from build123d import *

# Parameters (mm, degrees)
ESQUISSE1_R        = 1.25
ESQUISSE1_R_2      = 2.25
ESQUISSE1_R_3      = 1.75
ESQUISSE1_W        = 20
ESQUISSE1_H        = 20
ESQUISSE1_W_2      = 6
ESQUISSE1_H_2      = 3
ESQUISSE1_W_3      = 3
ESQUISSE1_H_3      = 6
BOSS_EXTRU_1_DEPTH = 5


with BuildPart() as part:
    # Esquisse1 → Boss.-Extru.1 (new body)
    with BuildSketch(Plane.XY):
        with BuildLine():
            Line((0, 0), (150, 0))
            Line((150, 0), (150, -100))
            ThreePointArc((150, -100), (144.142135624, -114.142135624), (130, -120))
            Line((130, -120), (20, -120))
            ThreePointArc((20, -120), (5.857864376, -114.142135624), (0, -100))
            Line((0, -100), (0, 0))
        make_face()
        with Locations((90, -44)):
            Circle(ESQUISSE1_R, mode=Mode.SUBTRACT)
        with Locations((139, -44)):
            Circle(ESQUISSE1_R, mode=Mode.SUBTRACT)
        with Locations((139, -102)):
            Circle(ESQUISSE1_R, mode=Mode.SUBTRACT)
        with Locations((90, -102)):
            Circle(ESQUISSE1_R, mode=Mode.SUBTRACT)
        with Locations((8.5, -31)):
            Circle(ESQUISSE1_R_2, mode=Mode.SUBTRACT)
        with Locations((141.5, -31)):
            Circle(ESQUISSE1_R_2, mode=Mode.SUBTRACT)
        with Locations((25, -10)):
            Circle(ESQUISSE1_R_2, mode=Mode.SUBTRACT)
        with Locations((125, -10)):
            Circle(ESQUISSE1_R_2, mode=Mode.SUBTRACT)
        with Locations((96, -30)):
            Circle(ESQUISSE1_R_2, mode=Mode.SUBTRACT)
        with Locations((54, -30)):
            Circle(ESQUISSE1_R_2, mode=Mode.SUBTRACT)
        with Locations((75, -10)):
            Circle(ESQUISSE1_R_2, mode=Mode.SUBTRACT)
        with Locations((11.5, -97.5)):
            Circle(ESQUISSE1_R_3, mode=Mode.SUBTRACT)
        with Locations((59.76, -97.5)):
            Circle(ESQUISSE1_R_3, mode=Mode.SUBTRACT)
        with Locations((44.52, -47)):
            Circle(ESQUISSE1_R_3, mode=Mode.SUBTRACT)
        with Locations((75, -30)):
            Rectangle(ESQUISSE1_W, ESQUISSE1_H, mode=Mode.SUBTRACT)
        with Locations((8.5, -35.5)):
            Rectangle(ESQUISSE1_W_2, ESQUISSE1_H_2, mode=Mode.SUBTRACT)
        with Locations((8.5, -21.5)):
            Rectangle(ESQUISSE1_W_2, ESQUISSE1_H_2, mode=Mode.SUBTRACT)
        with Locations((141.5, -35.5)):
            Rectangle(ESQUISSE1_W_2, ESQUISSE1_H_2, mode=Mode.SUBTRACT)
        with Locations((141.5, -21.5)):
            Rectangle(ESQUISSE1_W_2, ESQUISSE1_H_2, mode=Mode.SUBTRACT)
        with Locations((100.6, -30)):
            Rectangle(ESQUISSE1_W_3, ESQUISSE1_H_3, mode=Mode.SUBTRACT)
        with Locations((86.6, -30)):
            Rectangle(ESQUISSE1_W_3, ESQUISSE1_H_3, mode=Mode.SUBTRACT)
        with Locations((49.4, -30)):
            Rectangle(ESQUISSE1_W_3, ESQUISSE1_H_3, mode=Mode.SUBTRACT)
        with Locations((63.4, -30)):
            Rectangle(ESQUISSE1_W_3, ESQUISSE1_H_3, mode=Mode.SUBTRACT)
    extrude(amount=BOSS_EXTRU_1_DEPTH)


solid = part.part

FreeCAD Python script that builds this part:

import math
import FreeCAD as App
import Part
import Sketcher
from FreeCAD import Vector

doc = App.newDocument("Part")
params = doc.addObject("Spreadsheet::Sheet", "Params")
for row, (alias, value) in enumerate([
    ("sketch1_radius", "20 mm"),
    ("sketch1_diameter", "2.5 mm"),
    ("sketch1_diameter2", "3.5 mm"),
    ("sketch1_diameter3", "4.5 mm"),
    ("sketch1_width", "150 mm"),
    ("pad1_length", "5 mm"),
], start=1):
    params.set(f"A{row}", alias)
    params.set(f"B{row}", "=" + value)
    params.setAlias(f"B{row}", alias)

body = doc.addObject("PartDesign::Body", "Body")

sketch1 = doc.addObject("Sketcher::SketchObject", "Sketch")
body.addObject(sketch1)
sketch1.AttachmentSupport = (doc.XY_Plane, [""])
sketch1.MapMode = "FlatFace"
sketch1.addGeometry([
    Part.LineSegment(Vector(150, 0, 0), Vector(0, 0, 0)),
    Part.LineSegment(Vector(0, 0, 0), Vector(0, -100, 0)),
    Part.ArcOfCircle(Part.Circle(Vector(20, -100, 0), Vector(0, 0, 1), 20), math.radians(180), math.radians(270)),
    Part.LineSegment(Vector(20, -120, 0), Vector(130, -120, 0)),
    Part.ArcOfCircle(Part.Circle(Vector(130, -100, 0), Vector(0, 0, 1), 20), math.radians(-90), math.radians(0)),
    Part.LineSegment(Vector(150, -100, 0), Vector(150, 0, 0)),
    Part.Circle(Vector(139, -102, 0), Vector(0, 0, 1), 1.2),
    Part.Circle(Vector(90, -102, 0), Vector(0, 0, 1), 1.2),
    Part.Circle(Vector(59.8, -97.5, 0), Vector(0, 0, 1), 1.8),
    Part.Circle(Vector(11.5, -97.5, 0), Vector(0, 0, 1), 1.8),
    Part.Circle(Vector(139, -44, 0), Vector(0, 0, 1), 1.2),
    Part.LineSegment(Vector(138.5, -37, 0), Vector(138.5, -34, 0)),
    Part.LineSegment(Vector(138.5, -34, 0), Vector(144.5, -34, 0)),
    Part.LineSegment(Vector(144.5, -34, 0), Vector(144.5, -37, 0)),
    Part.LineSegment(Vector(144.5, -37, 0), Vector(138.5, -37, 0)),
    Part.Circle(Vector(90, -44, 0), Vector(0, 0, 1), 1.2),
    Part.Circle(Vector(141.5, -31, 0), Vector(0, 0, 1), 2.2),
    Part.LineSegment(Vector(138.5, -23, 0), Vector(138.5, -20, 0)),
    Part.LineSegment(Vector(138.5, -20, 0), Vector(144.5, -20, 0)),
    Part.LineSegment(Vector(144.5, -20, 0), Vector(144.5, -23, 0)),
    Part.LineSegment(Vector(144.5, -23, 0), Vector(138.5, -23, 0)),
    Part.Circle(Vector(125, -10, 0), Vector(0, 0, 1), 2.2),
    Part.LineSegment(Vector(99.1, -33, 0), Vector(99.1, -27, 0)),
    Part.LineSegment(Vector(99.1, -27, 0), Vector(102.1, -27, 0)),
    Part.LineSegment(Vector(102.1, -27, 0), Vector(102.1, -33, 0)),
    Part.LineSegment(Vector(102.1, -33, 0), Vector(99.1, -33, 0)),
    Part.Circle(Vector(96, -30, 0), Vector(0, 0, 1), 2.2),
    Part.LineSegment(Vector(85.1, -33, 0), Vector(85.1, -27, 0)),
    Part.LineSegment(Vector(85.1, -27, 0), Vector(88.1, -27, 0)),
    Part.LineSegment(Vector(88.1, -27, 0), Vector(88.1, -33, 0)),
    Part.LineSegment(Vector(88.1, -33, 0), Vector(85.1, -33, 0)),
    Part.Circle(Vector(44.5, -47, 0), Vector(0, 0, 1), 1.8),
    Part.LineSegment(Vector(5.5, -37, 0), Vector(5.5, -34, 0)),
    Part.LineSegment(Vector(5.5, -34, 0), Vector(11.5, -34, 0)),
    Part.LineSegment(Vector(11.5, -34, 0), Vector(11.5, -37, 0)),
    Part.LineSegment(Vector(11.5, -37, 0), Vector(5.5, -37, 0)),
    Part.LineSegment(Vector(65, -40, 0), Vector(65, -20, 0)),
    Part.LineSegment(Vector(65, -20, 0), Vector(85, -20, 0)),
    Part.LineSegment(Vector(85, -20, 0), Vector(85, -40, 0)),
    Part.LineSegment(Vector(85, -40, 0), Vector(65, -40, 0)),
    Part.LineSegment(Vector(61.9, -33, 0), Vector(61.9, -27, 0)),
    Part.LineSegment(Vector(61.9, -27, 0), Vector(64.9, -27, 0)),
    Part.LineSegment(Vector(64.9, -27, 0), Vector(64.9, -33, 0)),
    Part.LineSegment(Vector(64.9, -33, 0), Vector(61.9, -33, 0)),
    Part.Circle(Vector(54, -30, 0), Vector(0, 0, 1), 2.2),
    Part.LineSegment(Vector(47.9, -33, 0), Vector(47.9, -27, 0)),
    Part.LineSegment(Vector(47.9, -27, 0), Vector(50.9, -27, 0)),
    Part.LineSegment(Vector(50.9, -27, 0), Vector(50.9, -33, 0)),
    Part.LineSegment(Vector(50.9, -33, 0), Vector(47.9, -33, 0)),
    Part.Circle(Vector(75, -10, 0), Vector(0, 0, 1), 2.2),
    Part.Circle(Vector(8.5, -31, 0), Vector(0, 0, 1), 2.2),
    Part.LineSegment(Vector(5.5, -23, 0), Vector(5.5, -20, 0)),
    Part.LineSegment(Vector(5.5, -20, 0), Vector(11.5, -20, 0)),
    Part.LineSegment(Vector(11.5, -20, 0), Vector(11.5, -23, 0)),
    Part.LineSegment(Vector(11.5, -23, 0), Vector(5.5, -23, 0)),
    Part.Circle(Vector(25, -10, 0), Vector(0, 0, 1), 2.2),
], False)
sketch1.addConstraint([
    Sketcher.Constraint("Coincident", 0, 2, 1, 1),
    Sketcher.Constraint("Tangent", 1, 2, 2, 1),
    Sketcher.Constraint("Tangent", 2, 2, 3, 1),
    Sketcher.Constraint("Tangent", 3, 2, 4, 1),
    Sketcher.Constraint("Tangent", 4, 2, 5, 1),
    Sketcher.Constraint("Coincident", 5, 2, 0, 1),
    Sketcher.Constraint("Coincident", 11, 2, 12, 1),
    Sketcher.Constraint("Coincident", 12, 2, 13, 1),
    Sketcher.Constraint("Coincident", 13, 2, 14, 1),
    Sketcher.Constraint("Coincident", 14, 2, 11, 1),
    Sketcher.Constraint("Coincident", 17, 2, 18, 1),
    Sketcher.Constraint("Coincident", 18, 2, 19, 1),
    Sketcher.Constraint("Coincident", 19, 2, 20, 1),
    Sketcher.Constraint("Coincident", 20, 2, 17, 1),
    Sketcher.Constraint("Coincident", 22, 2, 23, 1),
    Sketcher.Constraint("Coincident", 23, 2, 24, 1),
    Sketcher.Constraint("Coincident", 24, 2, 25, 1),
    Sketcher.Constraint("Coincident", 25, 2, 22, 1),
    Sketcher.Constraint("Coincident", 27, 2, 28, 1),
    Sketcher.Constraint("Coincident", 28, 2, 29, 1),
    Sketcher.Constraint("Coincident", 29, 2, 30, 1),
    Sketcher.Constraint("Coincident", 30, 2, 27, 1),
    Sketcher.Constraint("Coincident", 32, 2, 33, 1),
    Sketcher.Constraint("Coincident", 33, 2, 34, 1),
    Sketcher.Constraint("Coincident", 34, 2, 35, 1),
    Sketcher.Constraint("Coincident", 35, 2, 32, 1),
    Sketcher.Constraint("Coincident", 36, 2, 37, 1),
    Sketcher.Constraint("Coincident", 37, 2, 38, 1),
    Sketcher.Constraint("Coincident", 38, 2, 39, 1),
    Sketcher.Constraint("Coincident", 39, 2, 36, 1),
    Sketcher.Constraint("Coincident", 40, 2, 41, 1),
    Sketcher.Constraint("Coincident", 41, 2, 42, 1),
    Sketcher.Constraint("Coincident", 42, 2, 43, 1),
    Sketcher.Constraint("Coincident", 43, 2, 40, 1),
    Sketcher.Constraint("Coincident", 45, 2, 46, 1),
    Sketcher.Constraint("Coincident", 46, 2, 47, 1),
    Sketcher.Constraint("Coincident", 47, 2, 48, 1),
    Sketcher.Constraint("Coincident", 48, 2, 45, 1),
    Sketcher.Constraint("Coincident", 51, 2, 52, 1),
    Sketcher.Constraint("Coincident", 52, 2, 53, 1),
    Sketcher.Constraint("Coincident", 53, 2, 54, 1),
    Sketcher.Constraint("Coincident", 54, 2, 51, 1),
    Sketcher.Constraint("Horizontal", 0),
    Sketcher.Constraint("Vertical", 1),
    Sketcher.Constraint("Horizontal", 3),
    Sketcher.Constraint("Vertical", 5),
    Sketcher.Constraint("Vertical", 11),
    Sketcher.Constraint("Horizontal", 12),
    Sketcher.Constraint("Vertical", 13),
    Sketcher.Constraint("Horizontal", 14),
    Sketcher.Constraint("Vertical", 17),
    Sketcher.Constraint("Horizontal", 18),
    Sketcher.Constraint("Vertical", 19),
    Sketcher.Constraint("Horizontal", 20),
    Sketcher.Constraint("Vertical", 22),
    Sketcher.Constraint("Horizontal", 23),
    Sketcher.Constraint("Vertical", 24),
    Sketcher.Constraint("Horizontal", 25),
    Sketcher.Constraint("Vertical", 27),
    Sketcher.Constraint("Horizontal", 28),
    Sketcher.Constraint("Vertical", 29),
    Sketcher.Constraint("Horizontal", 30),
    Sketcher.Constraint("Vertical", 32),
    Sketcher.Constraint("Horizontal", 33),
    Sketcher.Constraint("Vertical", 34),
    Sketcher.Constraint("Horizontal", 35),
    Sketcher.Constraint("Vertical", 36),
    Sketcher.Constraint("Horizontal", 37),
    Sketcher.Constraint("Vertical", 38),
    Sketcher.Constraint("Horizontal", 39),
    Sketcher.Constraint("Vertical", 40),
    Sketcher.Constraint("Horizontal", 41),
    Sketcher.Constraint("Vertical", 42),
    Sketcher.Constraint("Horizontal", 43),
    Sketcher.Constraint("Vertical", 45),
    Sketcher.Constraint("Horizontal", 46),
    Sketcher.Constraint("Vertical", 47),
    Sketcher.Constraint("Horizontal", 48),
    Sketcher.Constraint("Vertical", 51),
    Sketcher.Constraint("Horizontal", 52),
    Sketcher.Constraint("Vertical", 53),
    Sketcher.Constraint("Horizontal", 54),
    Sketcher.Constraint("Coincident", 0, 2, -1, 1),
    Sketcher.Constraint("Equal", 2, 4),
    Sketcher.Constraint("Equal", 6, 7),
    Sketcher.Constraint("Equal", 8, 9),
    Sketcher.Constraint("Equal", 7, 10),
    Sketcher.Constraint("Equal", 10, 15),
    Sketcher.Constraint("Equal", 16, 21),
    Sketcher.Constraint("Equal", 21, 26),
    Sketcher.Constraint("Equal", 9, 31),
    Sketcher.Constraint("Equal", 26, 44),
    Sketcher.Constraint("Equal", 44, 49),
    Sketcher.Constraint("Equal", 49, 50),
    Sketcher.Constraint("Equal", 50, 55),
    Sketcher.Constraint("Horizontal", 6, 3, 7, 3),
    Sketcher.Constraint("Horizontal", 8, 3, 9, 3),
    Sketcher.Constraint("Horizontal", 10, 3, 15, 3),
    Sketcher.Constraint("Horizontal", 26, 3, 44, 3),
    Sketcher.Constraint("Horizontal", 21, 3, 49, 3),
    Sketcher.Constraint("Horizontal", 16, 3, 50, 3),
    Sketcher.Constraint("Horizontal", 49, 3, 55, 3),
    Sketcher.Constraint("Horizontal", 23, 2, 27, 2),
    Sketcher.Constraint("Horizontal", 25, 2, 29, 2),
    Sketcher.Constraint("Horizontal", 12, 2, 32, 2),
    Sketcher.Constraint("Horizontal", 14, 2, 34, 2),
    Sketcher.Constraint("Horizontal", 18, 2, 36, 2),
    Sketcher.Constraint("Horizontal", 28, 2, 40, 2),
    Sketcher.Constraint("Horizontal", 30, 2, 42, 2),
    Sketcher.Constraint("Horizontal", 41, 2, 45, 2),
    Sketcher.Constraint("Horizontal", 43, 2, 47, 2),
    Sketcher.Constraint("Horizontal", 37, 2, 51, 2),
    Sketcher.Constraint("Horizontal", 20, 2, 53, 2),
    Sketcher.Constraint("Vertical", 6, 3, 10, 3),
    Sketcher.Constraint("Vertical", 7, 3, 15, 3),
    Sketcher.Constraint("Vertical", 14, 2, 17, 2),
    Sketcher.Constraint("Vertical", 13, 2, 18, 2),
    Sketcher.Constraint("Vertical", 9, 3, 33, 2),
    Sketcher.Constraint("Vertical", 35, 2, 51, 2),
    Sketcher.Constraint("Vertical", 34, 2, 52, 2),
    Sketcher.Constraint("Equal", 25, 28),
    Sketcher.Constraint("Equal", 20, 33),
    Sketcher.Constraint("Equal", 30, 41),
    Sketcher.Constraint("Equal", 43, 46),
    Sketcher.Constraint("Equal", 48, 11),
    Sketcher.Constraint("Equal", 13, 17),
    Sketcher.Constraint("Equal", 54, 22),
    Sketcher.Constraint("Equal", 39, 36),
    Sketcher.Constraint("Radius", 2, 20.0),
    Sketcher.Constraint("Diameter", 6, 2.5),
    Sketcher.Constraint("Diameter", 8, 3.5),
    Sketcher.Constraint("Diameter", 16, 4.5),
    Sketcher.Constraint("DistanceX", 0, 2, 0, 1, 150.0),
    Sketcher.Constraint("DistanceX", 12, 1, 12, 2, 6.0),
    Sketcher.Constraint("DistanceX", 23, 1, 23, 2, 3.0),
    Sketcher.Constraint("DistanceX", 37, 1, 37, 2, 20.0),
    Sketcher.Constraint("DistanceY", 1, 2, 1, 1, 100.0),
    Sketcher.Constraint("DistanceX", -1, 1, 6, 3, 139.0),
    Sketcher.Constraint("DistanceY", 6, 3, -1, 1, 102.0),
    Sketcher.Constraint("DistanceX", -1, 1, 7, 3, 90.0),
    Sketcher.Constraint("DistanceY", 10, 3, -1, 1, 44.0),
    Sketcher.Constraint("DistanceY", 16, 3, -1, 1, 31.0),
    Sketcher.Constraint("DistanceX", -1, 1, 21, 3, 125.0),
    Sketcher.Constraint("DistanceY", 21, 3, -1, 1, 10.0),
    Sketcher.Constraint("DistanceX", -1, 1, 26, 3, 96.0),
    Sketcher.Constraint("DistanceY", 26, 3, -1, 1, 30.0),
    Sketcher.Constraint("DistanceY", 31, 3, -1, 1, 47.0),
    Sketcher.Constraint("DistanceX", -1, 1, 44, 3, 54.0),
    Sketcher.Constraint("DistanceX", -1, 1, 49, 3, 75.0),
    Sketcher.Constraint("DistanceX", -1, 1, 55, 3, 25.0),
    Sketcher.Constraint("DistanceY", 11, 2, -1, 1, 34.0),
    Sketcher.Constraint("DistanceY", 17, 2, -1, 1, 20.0),
    Sketcher.Constraint("DistanceY", 22, 2, -1, 1, 27.0),
    Sketcher.Constraint("DistanceX", -1, 1, 36, 2, 65.0),
    Sketcher.Constraint("DistanceX", 50, 3, 9, 3, 3.0),
    Sketcher.Constraint("DistanceX", 11, 2, 16, 3, 3.0),
    Sketcher.Constraint("DistanceX", 27, 2, 22, 2, 14.0),
    Sketcher.Constraint("DistanceX", 45, 2, 40, 2, 14.0),
    Sketcher.Constraint("DistanceY", 8, 3, -1, 1, 97.5),
    Sketcher.Constraint("DistanceX", -1, 1, 9, 3, 11.5),
    Sketcher.Constraint("DistanceX", -1, 1, 16, 3, 141.5),
    Sketcher.Constraint("DistanceX", -1, 1, 22, 2, 99.1),
    Sketcher.Constraint("DistanceX", -1, 1, 40, 2, 61.9),
    Sketcher.Constraint("DistanceX", -1, 1, 8, 3, 59.76),
    Sketcher.Constraint("DistanceX", -1, 1, 31, 3, 44.52),
])
sketch1.setExpression("Constraints[128]", "Params.sketch1_radius")
sketch1.setExpression("Constraints[129]", "Params.sketch1_diameter")
sketch1.setExpression("Constraints[130]", "Params.sketch1_diameter2")
sketch1.setExpression("Constraints[131]", "Params.sketch1_diameter3")
sketch1.setExpression("Constraints[132]", "Params.sketch1_width")
pad1 = doc.addObject("PartDesign::Pad", "Pad")
body.addObject(pad1)
pad1.Profile = sketch1
pad1.setExpression("Length", "Params.pad1_length")

doc.recompute()
